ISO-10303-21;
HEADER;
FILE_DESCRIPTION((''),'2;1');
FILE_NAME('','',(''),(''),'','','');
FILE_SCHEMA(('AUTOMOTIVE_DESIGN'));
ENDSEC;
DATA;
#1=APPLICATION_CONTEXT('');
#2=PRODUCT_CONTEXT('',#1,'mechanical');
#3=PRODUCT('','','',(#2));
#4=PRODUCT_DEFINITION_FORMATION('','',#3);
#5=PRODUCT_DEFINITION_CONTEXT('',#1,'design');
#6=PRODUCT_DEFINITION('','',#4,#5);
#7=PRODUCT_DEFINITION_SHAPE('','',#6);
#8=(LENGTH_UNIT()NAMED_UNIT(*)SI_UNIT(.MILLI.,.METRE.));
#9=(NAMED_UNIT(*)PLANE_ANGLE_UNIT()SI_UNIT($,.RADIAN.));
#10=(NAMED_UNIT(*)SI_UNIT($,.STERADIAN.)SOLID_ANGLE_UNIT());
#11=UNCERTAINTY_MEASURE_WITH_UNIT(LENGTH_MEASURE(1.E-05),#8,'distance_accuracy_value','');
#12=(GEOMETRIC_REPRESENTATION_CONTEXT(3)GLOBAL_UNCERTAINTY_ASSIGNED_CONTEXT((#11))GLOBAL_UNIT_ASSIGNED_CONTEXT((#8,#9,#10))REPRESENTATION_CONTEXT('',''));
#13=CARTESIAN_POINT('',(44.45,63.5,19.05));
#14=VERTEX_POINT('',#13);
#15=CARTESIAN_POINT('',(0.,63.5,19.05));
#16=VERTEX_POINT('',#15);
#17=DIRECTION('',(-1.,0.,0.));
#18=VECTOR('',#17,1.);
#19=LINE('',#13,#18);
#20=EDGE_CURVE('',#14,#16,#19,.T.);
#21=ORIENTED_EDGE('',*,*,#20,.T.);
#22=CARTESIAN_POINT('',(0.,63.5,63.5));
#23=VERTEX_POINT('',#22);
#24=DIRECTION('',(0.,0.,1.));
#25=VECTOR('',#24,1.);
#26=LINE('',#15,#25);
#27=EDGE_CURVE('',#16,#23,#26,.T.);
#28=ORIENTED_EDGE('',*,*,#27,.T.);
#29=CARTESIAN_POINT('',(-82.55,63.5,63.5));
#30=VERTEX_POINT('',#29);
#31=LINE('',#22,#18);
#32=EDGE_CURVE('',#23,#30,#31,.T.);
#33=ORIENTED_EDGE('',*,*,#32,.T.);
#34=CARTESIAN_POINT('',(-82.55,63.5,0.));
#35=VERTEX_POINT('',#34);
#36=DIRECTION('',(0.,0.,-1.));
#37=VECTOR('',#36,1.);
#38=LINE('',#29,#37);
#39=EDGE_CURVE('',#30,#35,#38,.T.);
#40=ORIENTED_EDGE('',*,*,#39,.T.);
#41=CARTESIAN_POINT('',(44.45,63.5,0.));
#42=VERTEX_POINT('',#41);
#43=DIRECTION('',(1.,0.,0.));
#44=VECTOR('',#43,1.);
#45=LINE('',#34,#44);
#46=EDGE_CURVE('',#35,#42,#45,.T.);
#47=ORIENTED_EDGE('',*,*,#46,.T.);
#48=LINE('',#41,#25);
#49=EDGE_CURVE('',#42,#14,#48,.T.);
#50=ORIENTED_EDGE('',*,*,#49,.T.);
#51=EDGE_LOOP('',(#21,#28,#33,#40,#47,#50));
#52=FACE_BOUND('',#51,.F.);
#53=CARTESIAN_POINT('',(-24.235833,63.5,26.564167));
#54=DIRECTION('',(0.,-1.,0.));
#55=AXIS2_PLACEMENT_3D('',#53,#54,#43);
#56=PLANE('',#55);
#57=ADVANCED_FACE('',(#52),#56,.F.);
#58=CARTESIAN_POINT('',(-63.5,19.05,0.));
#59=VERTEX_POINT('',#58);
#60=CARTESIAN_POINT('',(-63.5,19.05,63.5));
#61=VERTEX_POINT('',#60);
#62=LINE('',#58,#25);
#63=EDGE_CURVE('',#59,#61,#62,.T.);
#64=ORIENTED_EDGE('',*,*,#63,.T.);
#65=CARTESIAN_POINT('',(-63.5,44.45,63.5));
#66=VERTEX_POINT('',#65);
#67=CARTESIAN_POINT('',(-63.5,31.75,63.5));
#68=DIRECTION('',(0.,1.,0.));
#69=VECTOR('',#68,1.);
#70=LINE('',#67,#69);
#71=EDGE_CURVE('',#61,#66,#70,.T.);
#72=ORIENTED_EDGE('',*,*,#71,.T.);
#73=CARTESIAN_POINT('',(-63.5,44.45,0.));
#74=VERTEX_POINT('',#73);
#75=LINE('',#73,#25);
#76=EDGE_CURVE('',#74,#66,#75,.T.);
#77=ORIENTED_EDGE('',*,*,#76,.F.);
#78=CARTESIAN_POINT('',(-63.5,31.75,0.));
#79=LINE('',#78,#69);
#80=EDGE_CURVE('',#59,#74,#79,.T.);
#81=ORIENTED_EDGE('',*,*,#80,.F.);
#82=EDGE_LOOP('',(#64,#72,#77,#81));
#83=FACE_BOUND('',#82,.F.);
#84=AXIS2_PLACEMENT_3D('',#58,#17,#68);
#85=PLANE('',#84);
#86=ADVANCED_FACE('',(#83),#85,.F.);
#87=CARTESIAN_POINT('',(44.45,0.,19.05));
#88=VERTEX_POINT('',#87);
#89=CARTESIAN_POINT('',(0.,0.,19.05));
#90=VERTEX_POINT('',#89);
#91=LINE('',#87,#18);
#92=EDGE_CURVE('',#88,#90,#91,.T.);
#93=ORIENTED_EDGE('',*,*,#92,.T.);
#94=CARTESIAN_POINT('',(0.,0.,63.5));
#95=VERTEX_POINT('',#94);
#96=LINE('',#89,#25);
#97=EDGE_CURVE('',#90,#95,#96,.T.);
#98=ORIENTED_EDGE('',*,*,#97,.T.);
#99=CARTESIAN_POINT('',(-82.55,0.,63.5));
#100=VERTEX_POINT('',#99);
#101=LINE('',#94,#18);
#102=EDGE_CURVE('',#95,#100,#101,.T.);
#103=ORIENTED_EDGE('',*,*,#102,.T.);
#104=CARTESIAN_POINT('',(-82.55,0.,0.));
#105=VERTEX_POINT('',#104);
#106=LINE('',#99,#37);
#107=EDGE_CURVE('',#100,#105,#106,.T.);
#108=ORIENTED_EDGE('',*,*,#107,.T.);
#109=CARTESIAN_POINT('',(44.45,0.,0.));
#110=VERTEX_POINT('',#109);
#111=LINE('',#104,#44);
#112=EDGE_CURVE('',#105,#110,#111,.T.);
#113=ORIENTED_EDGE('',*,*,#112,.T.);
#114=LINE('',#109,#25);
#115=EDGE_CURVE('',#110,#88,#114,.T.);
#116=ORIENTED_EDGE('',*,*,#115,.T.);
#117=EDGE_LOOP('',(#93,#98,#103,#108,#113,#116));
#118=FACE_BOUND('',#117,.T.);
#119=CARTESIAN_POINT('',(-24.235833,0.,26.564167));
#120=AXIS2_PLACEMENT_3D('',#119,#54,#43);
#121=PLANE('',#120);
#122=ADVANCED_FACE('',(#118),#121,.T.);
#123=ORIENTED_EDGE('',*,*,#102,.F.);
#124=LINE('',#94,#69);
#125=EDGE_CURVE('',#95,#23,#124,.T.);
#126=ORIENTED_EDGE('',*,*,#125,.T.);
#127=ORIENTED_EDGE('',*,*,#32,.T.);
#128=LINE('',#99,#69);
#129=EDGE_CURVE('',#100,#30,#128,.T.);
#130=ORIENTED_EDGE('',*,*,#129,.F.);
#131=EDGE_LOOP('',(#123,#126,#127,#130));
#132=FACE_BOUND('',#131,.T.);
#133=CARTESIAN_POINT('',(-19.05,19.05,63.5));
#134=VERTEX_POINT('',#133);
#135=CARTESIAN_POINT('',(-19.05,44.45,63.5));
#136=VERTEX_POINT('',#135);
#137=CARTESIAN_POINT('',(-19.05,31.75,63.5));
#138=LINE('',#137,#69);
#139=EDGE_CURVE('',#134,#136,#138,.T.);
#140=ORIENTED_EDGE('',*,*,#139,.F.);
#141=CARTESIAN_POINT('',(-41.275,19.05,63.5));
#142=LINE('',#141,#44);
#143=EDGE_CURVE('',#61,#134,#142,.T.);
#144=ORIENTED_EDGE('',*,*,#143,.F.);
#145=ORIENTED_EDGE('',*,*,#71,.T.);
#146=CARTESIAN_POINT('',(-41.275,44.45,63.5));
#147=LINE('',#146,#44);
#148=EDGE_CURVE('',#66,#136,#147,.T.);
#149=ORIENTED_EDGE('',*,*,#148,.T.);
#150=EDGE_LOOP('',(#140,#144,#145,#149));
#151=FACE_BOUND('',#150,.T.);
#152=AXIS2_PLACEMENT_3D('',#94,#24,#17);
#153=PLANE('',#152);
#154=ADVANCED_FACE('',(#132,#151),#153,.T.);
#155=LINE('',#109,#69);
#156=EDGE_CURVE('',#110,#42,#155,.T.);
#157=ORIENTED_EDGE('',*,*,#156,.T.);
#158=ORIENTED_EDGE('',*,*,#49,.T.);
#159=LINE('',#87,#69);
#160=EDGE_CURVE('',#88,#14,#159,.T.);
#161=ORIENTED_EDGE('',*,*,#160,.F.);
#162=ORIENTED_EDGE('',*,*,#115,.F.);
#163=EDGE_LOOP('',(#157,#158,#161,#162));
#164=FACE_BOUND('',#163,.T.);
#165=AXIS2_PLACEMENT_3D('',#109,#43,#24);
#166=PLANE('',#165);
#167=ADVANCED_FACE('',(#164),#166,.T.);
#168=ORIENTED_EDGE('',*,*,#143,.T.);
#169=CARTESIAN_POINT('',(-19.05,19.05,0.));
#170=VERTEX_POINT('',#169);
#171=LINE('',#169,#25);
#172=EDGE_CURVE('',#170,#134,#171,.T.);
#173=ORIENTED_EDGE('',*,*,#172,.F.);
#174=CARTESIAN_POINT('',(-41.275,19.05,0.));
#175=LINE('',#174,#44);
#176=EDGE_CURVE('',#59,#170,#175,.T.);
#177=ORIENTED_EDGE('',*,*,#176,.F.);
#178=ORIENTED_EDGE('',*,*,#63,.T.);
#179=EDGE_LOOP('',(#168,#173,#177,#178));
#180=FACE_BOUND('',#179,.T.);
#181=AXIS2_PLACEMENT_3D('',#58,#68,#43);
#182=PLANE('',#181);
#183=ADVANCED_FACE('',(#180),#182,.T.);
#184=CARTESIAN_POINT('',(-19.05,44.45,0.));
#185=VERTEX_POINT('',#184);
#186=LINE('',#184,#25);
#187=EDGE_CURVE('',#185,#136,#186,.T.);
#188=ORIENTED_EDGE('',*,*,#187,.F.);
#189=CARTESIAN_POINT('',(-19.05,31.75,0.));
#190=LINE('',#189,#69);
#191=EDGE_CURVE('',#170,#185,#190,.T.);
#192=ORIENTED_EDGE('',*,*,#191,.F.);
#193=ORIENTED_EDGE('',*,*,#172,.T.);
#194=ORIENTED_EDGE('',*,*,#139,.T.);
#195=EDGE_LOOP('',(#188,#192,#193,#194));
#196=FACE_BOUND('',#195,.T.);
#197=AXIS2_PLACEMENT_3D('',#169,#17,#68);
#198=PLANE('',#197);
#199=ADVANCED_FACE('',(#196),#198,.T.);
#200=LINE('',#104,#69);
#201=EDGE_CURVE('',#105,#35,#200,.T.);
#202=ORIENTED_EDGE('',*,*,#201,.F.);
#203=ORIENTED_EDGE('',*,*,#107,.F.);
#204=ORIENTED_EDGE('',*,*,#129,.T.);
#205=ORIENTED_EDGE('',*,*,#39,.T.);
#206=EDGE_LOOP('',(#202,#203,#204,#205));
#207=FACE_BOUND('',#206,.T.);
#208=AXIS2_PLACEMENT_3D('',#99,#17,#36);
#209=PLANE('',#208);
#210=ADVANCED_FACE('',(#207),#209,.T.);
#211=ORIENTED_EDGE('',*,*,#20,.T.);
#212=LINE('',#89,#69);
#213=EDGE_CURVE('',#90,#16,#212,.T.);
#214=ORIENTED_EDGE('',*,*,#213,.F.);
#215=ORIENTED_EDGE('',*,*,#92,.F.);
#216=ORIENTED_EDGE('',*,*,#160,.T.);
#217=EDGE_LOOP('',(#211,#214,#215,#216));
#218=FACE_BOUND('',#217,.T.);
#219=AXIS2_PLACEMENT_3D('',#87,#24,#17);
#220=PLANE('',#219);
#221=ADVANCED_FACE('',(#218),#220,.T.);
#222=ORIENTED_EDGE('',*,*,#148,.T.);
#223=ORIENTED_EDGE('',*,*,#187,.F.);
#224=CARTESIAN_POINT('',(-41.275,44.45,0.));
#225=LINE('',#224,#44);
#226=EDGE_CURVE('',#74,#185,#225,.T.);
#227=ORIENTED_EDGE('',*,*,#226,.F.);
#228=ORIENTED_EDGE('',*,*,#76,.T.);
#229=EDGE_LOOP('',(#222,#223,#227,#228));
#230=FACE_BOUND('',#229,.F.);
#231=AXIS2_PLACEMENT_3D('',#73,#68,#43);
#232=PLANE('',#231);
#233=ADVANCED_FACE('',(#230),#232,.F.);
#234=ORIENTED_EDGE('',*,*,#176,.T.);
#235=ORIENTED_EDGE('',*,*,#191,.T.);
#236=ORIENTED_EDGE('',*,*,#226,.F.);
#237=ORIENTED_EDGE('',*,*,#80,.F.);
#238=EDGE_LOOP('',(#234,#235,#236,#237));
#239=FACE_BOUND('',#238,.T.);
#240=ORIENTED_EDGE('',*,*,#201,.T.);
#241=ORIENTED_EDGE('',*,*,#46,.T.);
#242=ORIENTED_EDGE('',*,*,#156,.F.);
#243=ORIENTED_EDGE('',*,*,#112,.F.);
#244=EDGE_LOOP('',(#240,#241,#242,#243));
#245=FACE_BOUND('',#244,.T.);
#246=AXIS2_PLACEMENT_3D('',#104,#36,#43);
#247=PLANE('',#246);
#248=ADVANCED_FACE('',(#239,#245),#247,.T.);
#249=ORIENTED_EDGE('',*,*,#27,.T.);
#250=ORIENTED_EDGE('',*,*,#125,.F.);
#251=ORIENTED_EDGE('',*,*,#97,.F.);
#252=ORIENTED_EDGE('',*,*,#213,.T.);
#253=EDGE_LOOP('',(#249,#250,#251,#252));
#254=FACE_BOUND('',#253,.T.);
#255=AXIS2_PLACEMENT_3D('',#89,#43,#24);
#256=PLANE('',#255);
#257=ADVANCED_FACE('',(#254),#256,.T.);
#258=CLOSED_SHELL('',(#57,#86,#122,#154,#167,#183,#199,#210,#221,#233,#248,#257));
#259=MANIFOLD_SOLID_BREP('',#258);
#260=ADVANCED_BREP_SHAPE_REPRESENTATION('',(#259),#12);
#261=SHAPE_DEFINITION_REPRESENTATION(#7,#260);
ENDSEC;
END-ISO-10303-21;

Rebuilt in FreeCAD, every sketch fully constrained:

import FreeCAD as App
import Part
import Sketcher
from FreeCAD import Vector
Q = App.Units.Quantity


def add_polygon(sketch, points):
    """Adds a closed chain of lines whose ends are joined by coincident constraints."""
    first, n = sketch.GeometryCount, len(points)
    for a, b in zip(points, points[1:] + points[:1]):
        sketch.addGeometry(Part.LineSegment(App.Vector(*a, 0), App.Vector(*b, 0)), False)
    for i in range(n):
        sketch.addConstraint(Sketcher.Constraint("Coincident", first + i, 2, first + (i + 1) % n, 1))

doc = App.newDocument("Part")
body = doc.addObject("PartDesign::Body", "Body")

sketch1 = body.newObject("Sketcher::SketchObject", "Sketch")
sketch1.AttachmentSupport = (doc.getObject("XZ_Plane"), [""])
sketch1.MapMode = "FlatFace"
add_polygon(sketch1, [(-82.55, 0), (44.45, 0), (44.45, 19.05), (0, 19.05), (0, 63.5), (-82.55, 63.5)])
sketch1.addConstraint(Sketcher.Constraint("Horizontal", 0))
sketch1.addConstraint(Sketcher.Constraint("Vertical", 1))
sketch1.addConstraint(Sketcher.Constraint("Horizontal", 2))
sketch1.addConstraint(Sketcher.Constraint("Vertical", 3))
sketch1.addConstraint(Sketcher.Constraint("Horizontal", 4))
sketch1.addConstraint(Sketcher.Constraint("Vertical", 5))
sketch1.addConstraint(Sketcher.Constraint("PointOnObject", 0, 2, -1))
sketch1.addConstraint(Sketcher.Constraint("PointOnObject", 2, 2, -2))
sketch1.addConstraint(Sketcher.Constraint("Equal", 2, 3))
sketch1.addConstraint(Sketcher.Constraint("DistanceX", 0, 1, 0, 2, Q("5 in")))
sketch1.addConstraint(Sketcher.Constraint("DistanceY", 5, 2, 5, 1, Q("2.5 in")))
sketch1.addConstraint(Sketcher.Constraint("DistanceX", 2, 2, 2, 1, Q("1.75 in")))
pad1 = body.newObject("PartDesign::Pad", "Pad")
pad1.Profile = sketch1
pad1.Length = Q("2.5 in")
pad1.Reversed = True

sketch2 = body.newObject("Sketcher::SketchObject", "Sketch001")
sketch2.AttachmentSupport = (doc.getObject("XY_Plane"), [""])
sketch2.MapMode = "FlatFace"
add_polygon(sketch2, [(-63.5, 44.45), (-63.5, 19.05), (-19.05, 19.05), (-19.05, 44.45)])
sketch2.addConstraint(Sketcher.Constraint("Vertical", 0))
sketch2.addConstraint(Sketcher.Constraint("Horizontal", 1))
sketch2.addConstraint(Sketcher.Constraint("Vertical", 2))
sketch2.addConstraint(Sketcher.Constraint("Horizontal", 3))
sketch2.addConstraint(Sketcher.Constraint("DistanceY", 0, 2, 0, 1, Q("1 in")))
sketch2.addConstraint(Sketcher.Constraint("DistanceX", 1, 1, 1, 2, Q("1.75 in")))
sketch2.addConstraint(Sketcher.Constraint("DistanceX", 0, 2, -1, 1, Q("2.5 in")))
sketch2.addConstraint(Sketcher.Constraint("DistanceY", -1, 1, 0, 2, Q("0.75 in")))
pocket1 = body.newObject("PartDesign::Pocket", "Pocket")
pocket1.Profile = sketch2
pocket1.Length = Q("2.5 in")
pocket1.Reversed = True

doc.recompute()
